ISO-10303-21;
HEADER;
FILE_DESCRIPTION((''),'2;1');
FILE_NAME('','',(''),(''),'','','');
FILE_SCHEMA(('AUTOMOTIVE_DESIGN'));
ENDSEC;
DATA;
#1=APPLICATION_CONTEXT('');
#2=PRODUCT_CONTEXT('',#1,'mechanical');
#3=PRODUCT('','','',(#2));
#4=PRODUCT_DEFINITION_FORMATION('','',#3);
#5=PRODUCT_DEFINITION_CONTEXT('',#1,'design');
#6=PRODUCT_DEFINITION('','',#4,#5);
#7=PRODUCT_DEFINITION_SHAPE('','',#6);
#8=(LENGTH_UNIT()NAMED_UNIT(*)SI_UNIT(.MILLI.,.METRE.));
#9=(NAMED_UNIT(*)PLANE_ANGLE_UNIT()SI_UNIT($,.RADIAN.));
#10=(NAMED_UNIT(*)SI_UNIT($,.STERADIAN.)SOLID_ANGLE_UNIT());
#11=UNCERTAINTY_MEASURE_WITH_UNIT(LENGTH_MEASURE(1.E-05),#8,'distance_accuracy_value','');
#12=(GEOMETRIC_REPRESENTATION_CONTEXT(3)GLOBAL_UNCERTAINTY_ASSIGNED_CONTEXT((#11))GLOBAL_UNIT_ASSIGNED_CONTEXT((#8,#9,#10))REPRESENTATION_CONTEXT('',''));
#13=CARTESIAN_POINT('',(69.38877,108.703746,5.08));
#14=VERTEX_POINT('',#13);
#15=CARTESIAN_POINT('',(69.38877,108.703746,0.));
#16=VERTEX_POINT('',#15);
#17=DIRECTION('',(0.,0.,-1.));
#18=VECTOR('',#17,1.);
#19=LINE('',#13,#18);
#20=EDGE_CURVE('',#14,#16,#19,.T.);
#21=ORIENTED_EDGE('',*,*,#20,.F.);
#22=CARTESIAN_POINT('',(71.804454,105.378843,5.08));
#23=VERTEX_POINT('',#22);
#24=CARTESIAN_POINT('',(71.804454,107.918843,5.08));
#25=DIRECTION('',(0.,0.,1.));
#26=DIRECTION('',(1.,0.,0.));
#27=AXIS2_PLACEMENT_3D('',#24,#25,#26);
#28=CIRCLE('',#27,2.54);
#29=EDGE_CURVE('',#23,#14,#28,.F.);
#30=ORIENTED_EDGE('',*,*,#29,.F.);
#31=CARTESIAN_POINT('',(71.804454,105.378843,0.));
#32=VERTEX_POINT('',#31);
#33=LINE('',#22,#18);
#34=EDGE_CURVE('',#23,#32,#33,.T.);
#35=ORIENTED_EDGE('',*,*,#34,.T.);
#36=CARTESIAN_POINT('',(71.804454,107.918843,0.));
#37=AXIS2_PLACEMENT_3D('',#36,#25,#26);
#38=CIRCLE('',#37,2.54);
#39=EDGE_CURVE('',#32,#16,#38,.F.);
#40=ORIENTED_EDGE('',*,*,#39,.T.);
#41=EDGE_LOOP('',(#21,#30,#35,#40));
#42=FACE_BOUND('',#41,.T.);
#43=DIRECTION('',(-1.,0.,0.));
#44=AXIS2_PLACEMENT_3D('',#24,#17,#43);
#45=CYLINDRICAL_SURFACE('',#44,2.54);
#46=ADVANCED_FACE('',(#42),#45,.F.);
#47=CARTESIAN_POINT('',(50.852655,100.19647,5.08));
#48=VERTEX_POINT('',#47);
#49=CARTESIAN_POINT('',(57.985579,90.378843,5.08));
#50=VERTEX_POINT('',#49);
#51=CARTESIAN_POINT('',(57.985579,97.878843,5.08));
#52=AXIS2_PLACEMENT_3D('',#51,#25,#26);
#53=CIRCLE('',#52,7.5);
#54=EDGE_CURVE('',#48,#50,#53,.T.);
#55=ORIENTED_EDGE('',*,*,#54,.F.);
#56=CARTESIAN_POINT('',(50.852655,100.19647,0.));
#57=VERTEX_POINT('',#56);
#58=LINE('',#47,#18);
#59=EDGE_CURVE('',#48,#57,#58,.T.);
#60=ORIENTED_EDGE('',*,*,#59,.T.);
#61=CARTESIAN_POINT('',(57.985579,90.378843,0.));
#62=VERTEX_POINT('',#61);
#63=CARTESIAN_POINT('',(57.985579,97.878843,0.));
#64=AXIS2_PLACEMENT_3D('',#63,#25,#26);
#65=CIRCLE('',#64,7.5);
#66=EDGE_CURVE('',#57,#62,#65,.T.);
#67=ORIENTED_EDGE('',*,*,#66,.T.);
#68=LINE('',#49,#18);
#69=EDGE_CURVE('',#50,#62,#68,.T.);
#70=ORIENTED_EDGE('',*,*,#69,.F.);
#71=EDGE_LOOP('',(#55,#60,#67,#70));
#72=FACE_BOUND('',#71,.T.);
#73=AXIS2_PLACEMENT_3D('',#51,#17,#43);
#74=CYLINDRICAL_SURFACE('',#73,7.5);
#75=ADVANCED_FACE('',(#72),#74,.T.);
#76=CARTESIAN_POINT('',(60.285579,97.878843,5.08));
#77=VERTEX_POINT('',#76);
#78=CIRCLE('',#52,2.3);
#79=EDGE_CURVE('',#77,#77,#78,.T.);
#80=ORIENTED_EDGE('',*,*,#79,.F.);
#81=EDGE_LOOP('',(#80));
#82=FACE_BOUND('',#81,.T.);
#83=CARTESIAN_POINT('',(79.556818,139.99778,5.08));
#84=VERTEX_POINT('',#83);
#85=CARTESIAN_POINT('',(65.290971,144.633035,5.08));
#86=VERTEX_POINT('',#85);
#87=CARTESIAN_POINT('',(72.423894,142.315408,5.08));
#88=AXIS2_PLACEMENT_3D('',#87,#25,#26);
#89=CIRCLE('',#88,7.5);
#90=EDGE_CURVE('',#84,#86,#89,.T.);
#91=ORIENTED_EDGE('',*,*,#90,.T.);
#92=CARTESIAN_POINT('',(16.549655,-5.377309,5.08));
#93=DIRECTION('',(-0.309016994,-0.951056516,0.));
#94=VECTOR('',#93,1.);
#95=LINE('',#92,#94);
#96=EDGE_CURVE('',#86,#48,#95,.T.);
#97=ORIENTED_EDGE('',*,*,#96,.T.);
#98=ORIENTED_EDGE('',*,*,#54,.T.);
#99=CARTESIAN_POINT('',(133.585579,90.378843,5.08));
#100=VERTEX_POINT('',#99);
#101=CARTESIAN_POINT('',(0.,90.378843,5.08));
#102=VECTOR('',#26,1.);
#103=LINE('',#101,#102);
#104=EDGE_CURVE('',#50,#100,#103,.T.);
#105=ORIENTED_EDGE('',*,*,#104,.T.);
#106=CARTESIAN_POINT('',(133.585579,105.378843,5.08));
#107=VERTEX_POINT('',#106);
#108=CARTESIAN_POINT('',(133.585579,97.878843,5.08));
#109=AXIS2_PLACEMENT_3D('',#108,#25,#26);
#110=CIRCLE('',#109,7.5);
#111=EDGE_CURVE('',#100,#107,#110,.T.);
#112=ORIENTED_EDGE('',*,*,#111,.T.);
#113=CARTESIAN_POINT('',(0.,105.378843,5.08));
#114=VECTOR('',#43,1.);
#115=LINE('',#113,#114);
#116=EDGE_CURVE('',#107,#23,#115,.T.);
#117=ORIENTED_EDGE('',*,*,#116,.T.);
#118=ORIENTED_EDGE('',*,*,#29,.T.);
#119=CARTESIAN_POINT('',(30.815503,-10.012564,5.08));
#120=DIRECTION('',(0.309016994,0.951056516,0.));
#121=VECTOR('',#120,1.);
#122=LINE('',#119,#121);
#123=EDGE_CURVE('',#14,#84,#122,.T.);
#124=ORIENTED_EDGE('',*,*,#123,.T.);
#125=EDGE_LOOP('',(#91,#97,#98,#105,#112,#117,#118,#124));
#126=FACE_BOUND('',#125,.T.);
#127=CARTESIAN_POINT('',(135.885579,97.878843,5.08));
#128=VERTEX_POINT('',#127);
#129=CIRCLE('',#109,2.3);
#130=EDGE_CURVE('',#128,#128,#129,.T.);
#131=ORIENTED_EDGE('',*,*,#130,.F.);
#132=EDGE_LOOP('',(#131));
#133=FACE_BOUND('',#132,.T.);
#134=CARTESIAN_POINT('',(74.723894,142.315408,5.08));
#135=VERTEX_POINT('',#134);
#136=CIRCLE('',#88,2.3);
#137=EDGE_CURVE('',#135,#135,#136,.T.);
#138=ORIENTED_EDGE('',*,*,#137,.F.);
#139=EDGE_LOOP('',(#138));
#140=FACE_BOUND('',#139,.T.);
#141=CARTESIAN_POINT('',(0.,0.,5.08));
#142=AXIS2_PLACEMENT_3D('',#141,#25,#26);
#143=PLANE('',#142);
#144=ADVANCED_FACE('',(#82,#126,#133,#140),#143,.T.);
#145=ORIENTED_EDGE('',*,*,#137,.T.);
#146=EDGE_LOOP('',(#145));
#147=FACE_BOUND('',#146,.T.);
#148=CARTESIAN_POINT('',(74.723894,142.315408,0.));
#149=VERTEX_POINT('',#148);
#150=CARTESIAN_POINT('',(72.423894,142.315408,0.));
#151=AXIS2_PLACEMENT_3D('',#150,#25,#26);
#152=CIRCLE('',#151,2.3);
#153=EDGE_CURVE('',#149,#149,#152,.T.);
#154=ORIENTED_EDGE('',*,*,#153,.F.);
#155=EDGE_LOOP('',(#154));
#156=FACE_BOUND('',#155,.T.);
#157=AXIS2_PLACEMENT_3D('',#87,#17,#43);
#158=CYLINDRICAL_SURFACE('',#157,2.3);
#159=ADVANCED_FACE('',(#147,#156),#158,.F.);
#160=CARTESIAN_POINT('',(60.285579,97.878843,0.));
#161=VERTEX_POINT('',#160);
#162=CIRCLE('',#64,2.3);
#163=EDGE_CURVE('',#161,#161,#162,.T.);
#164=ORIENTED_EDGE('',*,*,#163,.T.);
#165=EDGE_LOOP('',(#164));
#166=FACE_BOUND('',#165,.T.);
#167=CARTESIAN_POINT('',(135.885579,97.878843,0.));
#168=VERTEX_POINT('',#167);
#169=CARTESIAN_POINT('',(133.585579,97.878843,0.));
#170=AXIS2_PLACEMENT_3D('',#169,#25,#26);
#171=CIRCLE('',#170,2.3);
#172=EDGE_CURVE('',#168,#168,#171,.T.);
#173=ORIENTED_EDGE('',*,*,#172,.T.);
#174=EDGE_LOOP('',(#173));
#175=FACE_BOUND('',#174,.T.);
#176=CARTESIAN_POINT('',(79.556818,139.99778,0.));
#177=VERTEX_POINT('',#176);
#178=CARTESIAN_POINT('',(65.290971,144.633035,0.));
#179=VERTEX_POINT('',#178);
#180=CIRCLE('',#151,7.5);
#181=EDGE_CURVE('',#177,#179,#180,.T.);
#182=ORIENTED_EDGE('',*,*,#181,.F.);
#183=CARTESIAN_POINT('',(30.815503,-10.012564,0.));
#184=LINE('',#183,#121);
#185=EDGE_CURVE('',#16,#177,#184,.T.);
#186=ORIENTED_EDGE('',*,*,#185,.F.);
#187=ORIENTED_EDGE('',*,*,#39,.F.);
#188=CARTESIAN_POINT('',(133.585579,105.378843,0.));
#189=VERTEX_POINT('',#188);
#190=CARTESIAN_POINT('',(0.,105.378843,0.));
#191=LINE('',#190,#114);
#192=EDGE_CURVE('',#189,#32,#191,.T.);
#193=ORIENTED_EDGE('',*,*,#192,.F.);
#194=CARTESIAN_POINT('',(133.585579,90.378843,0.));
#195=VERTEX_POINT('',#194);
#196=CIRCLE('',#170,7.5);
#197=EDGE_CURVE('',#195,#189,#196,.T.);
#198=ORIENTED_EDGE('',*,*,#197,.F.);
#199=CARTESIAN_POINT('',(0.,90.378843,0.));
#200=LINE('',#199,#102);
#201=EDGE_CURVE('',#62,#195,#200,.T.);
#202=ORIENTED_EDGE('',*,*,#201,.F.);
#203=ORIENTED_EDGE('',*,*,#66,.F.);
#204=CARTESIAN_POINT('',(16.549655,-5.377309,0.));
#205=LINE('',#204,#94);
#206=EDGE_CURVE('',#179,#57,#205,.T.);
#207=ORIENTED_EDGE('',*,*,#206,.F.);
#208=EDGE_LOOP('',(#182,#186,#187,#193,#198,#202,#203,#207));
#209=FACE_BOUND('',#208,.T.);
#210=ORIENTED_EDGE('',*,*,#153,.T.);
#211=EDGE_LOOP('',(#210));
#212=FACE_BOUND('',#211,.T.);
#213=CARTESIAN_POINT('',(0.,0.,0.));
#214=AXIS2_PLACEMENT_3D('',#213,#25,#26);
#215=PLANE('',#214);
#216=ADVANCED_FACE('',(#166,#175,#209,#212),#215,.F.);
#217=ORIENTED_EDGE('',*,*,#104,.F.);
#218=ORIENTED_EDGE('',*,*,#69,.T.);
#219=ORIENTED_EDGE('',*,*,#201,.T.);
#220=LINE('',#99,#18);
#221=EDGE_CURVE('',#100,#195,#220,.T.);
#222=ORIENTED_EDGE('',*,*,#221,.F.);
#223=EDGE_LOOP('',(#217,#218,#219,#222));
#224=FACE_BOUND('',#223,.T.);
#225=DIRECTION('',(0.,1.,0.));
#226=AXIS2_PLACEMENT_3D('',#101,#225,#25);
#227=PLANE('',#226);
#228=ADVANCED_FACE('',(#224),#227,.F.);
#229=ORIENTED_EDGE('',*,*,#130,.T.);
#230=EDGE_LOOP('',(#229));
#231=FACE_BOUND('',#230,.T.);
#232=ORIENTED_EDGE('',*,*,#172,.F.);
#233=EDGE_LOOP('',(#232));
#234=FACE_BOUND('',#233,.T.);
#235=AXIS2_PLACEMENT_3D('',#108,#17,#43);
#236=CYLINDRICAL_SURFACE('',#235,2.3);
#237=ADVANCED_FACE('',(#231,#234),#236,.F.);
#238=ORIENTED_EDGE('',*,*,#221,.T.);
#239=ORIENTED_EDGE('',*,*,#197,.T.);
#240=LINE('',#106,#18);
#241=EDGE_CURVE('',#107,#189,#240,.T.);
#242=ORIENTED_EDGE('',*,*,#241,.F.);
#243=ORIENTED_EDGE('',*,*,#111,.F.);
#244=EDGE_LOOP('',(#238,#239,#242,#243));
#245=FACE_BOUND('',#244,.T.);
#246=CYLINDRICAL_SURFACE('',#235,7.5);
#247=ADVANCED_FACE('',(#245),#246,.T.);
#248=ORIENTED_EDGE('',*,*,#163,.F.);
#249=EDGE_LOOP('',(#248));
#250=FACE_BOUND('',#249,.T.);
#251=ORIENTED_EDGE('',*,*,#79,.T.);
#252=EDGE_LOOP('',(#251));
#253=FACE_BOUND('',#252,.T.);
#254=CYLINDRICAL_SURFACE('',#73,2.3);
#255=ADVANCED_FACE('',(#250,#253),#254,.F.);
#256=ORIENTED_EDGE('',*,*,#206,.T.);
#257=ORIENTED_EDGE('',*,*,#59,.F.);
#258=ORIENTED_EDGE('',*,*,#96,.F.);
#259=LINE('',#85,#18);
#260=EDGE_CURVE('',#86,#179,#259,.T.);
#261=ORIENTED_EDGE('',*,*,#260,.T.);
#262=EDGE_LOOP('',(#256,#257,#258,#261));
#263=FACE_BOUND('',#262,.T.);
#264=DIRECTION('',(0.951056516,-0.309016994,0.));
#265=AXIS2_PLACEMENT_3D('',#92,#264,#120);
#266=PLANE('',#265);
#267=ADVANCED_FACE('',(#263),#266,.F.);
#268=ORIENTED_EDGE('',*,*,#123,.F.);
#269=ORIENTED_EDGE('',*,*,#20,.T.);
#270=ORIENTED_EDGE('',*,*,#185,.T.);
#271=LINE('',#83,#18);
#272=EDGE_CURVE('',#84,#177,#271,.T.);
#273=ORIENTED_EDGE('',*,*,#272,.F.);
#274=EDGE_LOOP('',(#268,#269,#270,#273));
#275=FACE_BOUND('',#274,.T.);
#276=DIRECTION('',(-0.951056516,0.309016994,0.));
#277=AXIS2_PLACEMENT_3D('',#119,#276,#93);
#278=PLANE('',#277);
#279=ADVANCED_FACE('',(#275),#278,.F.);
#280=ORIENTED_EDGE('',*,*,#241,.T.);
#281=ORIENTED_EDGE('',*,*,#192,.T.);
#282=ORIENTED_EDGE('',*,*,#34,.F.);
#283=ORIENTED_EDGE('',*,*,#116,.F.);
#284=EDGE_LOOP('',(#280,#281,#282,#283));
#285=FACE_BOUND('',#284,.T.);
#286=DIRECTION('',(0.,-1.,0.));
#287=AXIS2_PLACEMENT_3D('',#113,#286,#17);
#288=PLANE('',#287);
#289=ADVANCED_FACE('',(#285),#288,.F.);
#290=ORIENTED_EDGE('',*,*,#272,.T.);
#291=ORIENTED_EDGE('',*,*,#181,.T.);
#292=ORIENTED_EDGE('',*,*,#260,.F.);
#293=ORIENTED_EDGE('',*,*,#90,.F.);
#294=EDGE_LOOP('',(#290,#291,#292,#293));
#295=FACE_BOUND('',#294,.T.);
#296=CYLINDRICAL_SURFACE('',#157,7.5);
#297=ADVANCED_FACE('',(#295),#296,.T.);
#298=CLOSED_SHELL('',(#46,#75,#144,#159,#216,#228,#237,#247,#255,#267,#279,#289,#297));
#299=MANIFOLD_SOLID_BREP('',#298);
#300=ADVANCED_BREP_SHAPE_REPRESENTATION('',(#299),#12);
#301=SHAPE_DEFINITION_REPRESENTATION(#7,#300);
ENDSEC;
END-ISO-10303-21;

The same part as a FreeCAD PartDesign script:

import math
import FreeCAD as App
import Part
import Sketcher

V = App.Vector
Q = App.Units.Quantity

doc = App.newDocument("Part")
params = doc.addObject("Spreadsheet::Sheet", "Params")
for row, (alias, value) in enumerate([
    ("sketch1_diameter", "4.6 mm"),
    ("sketch1_radius", "7.5 mm"),
    ("sketch1_radius2", "2.54 mm"),
    ("sketch1_width", "75.6 mm"),
    ("pad1_length", "5.08 mm"),
], start=1):
    params.set(f"A{row}", alias)
    params.set(f"B{row}", "=" + value)
    params.setAlias(f"B{row}", alias)

body = doc.addObject("PartDesign::Body", "Body")

sketch1 = doc.addObject("Sketcher::SketchObject", "Sketch")
body.addObject(sketch1)
sketch1.AttachmentSupport = (doc.XY_Plane, [""])
sketch1.MapMode = "FlatFace"
sketch1.addGeometry(Part.ArcOfCircle(Part.Circle(V(58, 97.9, 0), V(0, 0, 1), 7.5), math.radians(162), math.radians(270)), False)
sketch1.addGeometry(Part.LineSegment(V(58, 90.4, 0), V(133.6, 90.4, 0)), False)
sketch1.addGeometry(Part.ArcOfCircle(Part.Circle(V(133.6, 97.9, 0), V(0, 0, 1), 7.5), math.radians(-90), math.radians(0)), False)
sketch1.addGeometry(Part.ArcOfCircle(Part.Circle(V(133.6, 97.9, 0), V(0, 0, 1), 7.5), math.radians(0), math.radians(90)), False)
sketch1.addGeometry(Part.LineSegment(V(133.6, 105.4, 0), V(71.8, 105.4, 0)), False)
sketch1.addGeometry(Part.ArcOfCircle(Part.Circle(V(71.8, 107.9, 0), V(0, 0, 1), 2.5), math.radians(162), math.radians(270)), False)
sketch1.addGeometry(Part.LineSegment(V(69.4, 108.7, 0), V(79.6, 140, 0)), False)
sketch1.addGeometry(Part.ArcOfCircle(Part.Circle(V(72.4, 142.3, 0), V(0, 0, 1), 7.5), math.radians(-18), math.radians(162)), False)
sketch1.addGeometry(Part.LineSegment(V(65.3, 144.6, 0), V(50.9, 100.2, 0)), False)
sketch1.addGeometry(Part.Circle(V(58, 97.9, 0), V(0, 0, 1), 2.3), False)
sketch1.addGeometry(Part.Circle(V(133.6, 97.9, 0), V(0, 0, 1), 2.3), False)
sketch1.addGeometry(Part.Circle(V(72.4, 142.3, 0), V(0, 0, 1), 2.3), False)
sketch1.addConstraint(Sketcher.Constraint("Tangent", 0, 2, 1, 1))
sketch1.addConstraint(Sketcher.Constraint("Tangent", 1, 2, 2, 1))
sketch1.addConstraint(Sketcher.Constraint("Tangent", 2, 2, 3, 1))
sketch1.addConstraint(Sketcher.Constraint("Tangent", 3, 2, 4, 1))
sketch1.addConstraint(Sketcher.Constraint("Tangent", 4, 2, 5, 2))
sketch1.addConstraint(Sketcher.Constraint("Tangent", 5, 1, 6, 1))
sketch1.addConstraint(Sketcher.Constraint("Tangent", 6, 2, 7, 1))
sketch1.addConstraint(Sketcher.Constraint("Tangent", 7, 2, 8, 1))
sketch1.addConstraint(Sketcher.Constraint("Tangent", 8, 2, 0, 1))
sketch1.addConstraint(Sketcher.Constraint("Horizontal", 1))
sketch1.addConstraint(Sketcher.Constraint("Horizontal", 4))
sketch1.addConstraint(Sketcher.Constraint("Coincident", 9, 3, 0, 3))
sketch1.addConstraint(Sketcher.Constraint("Coincident", 10, 3, 2, 3))
sketch1.addConstraint(Sketcher.Constraint("Coincident", 11, 3, 7, 3))
sketch1.addConstraint(Sketcher.Constraint("Equal", 0, 2))
sketch1.addConstraint(Sketcher.Constraint("Equal", 2, 3))
sketch1.addConstraint(Sketcher.Constraint("Equal", 3, 7))
sketch1.addConstraint(Sketcher.Constraint("Equal", 9, 10))
sketch1.addConstraint(Sketcher.Constraint("Equal", 10, 11))
sketch1.addConstraint(Sketcher.Constraint("Parallel", 6, 8))
sketch1.addConstraint(Sketcher.Constraint("Horizontal", 10, 3, 2, 2))
sketch1.addConstraint(Sketcher.Constraint("Diameter", 9, Q("4.6 mm")))
sketch1.addConstraint(Sketcher.Constraint("Radius", 0, Q("7.5 mm")))
sketch1.addConstraint(Sketcher.Constraint("Angle", 6, Q("72 deg")))
sketch1.addConstraint(Sketcher.Constraint("Radius", 5, Q("2.54 mm")))
sketch1.addConstraint(Sketcher.Constraint("DistanceX", 1, 1, 1, 2, Q("75.6 mm")))
sketch1.addConstraint(Sketcher.Constraint("DistanceX", 7, 2, 5, 1, Q("4.0978 mm")))
sketch1.addConstraint(Sketcher.Constraint("DistanceX", -1, 1, 0, 3, Q("57.985579 mm")))
sketch1.addConstraint(Sketcher.Constraint("DistanceY", -1, 1, 6, 2, Q("139.99778 mm")))
sketch1.setExpression("Constraints[21]", "Params.sketch1_diameter")
sketch1.setExpression("Constraints[22]", "Params.sketch1_radius")
sketch1.setExpression("Constraints[24]", "Params.sketch1_radius2")
sketch1.setExpression("Constraints[25]", "Params.sketch1_width")
pad1 = doc.addObject("PartDesign::Pad", "Pad")
body.addObject(pad1)
pad1.Profile = sketch1
pad1.setExpression("Length", "Params.pad1_length")

doc.recompute()
